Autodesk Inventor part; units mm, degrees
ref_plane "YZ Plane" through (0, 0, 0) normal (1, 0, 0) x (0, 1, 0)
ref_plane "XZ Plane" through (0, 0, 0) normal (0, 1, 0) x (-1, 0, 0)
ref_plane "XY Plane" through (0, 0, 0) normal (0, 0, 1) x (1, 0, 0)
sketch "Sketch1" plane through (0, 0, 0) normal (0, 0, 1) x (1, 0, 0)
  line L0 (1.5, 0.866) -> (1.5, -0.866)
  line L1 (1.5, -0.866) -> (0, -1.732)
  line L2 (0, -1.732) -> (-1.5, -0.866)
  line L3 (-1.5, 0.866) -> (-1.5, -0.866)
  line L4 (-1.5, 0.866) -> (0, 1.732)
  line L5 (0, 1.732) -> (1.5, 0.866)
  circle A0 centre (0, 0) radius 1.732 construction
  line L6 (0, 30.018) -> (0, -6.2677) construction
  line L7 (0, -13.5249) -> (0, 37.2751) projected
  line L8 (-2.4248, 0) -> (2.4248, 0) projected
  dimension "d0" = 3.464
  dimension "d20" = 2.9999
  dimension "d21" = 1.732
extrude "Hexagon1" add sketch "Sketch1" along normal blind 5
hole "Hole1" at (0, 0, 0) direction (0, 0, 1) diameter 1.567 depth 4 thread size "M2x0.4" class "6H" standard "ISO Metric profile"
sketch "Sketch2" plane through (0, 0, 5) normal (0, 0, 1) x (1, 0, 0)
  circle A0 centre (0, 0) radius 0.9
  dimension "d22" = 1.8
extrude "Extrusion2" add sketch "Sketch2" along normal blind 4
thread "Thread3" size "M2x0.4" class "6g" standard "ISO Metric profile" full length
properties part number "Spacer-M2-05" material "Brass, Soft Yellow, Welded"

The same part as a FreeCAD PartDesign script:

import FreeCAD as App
import Part
import Sketcher
from FreeCAD import Vector
Q = App.Units.Quantity


def add_polygon(sketch, points):
    """Adds a closed chain of lines whose ends are joined by coincident constraints."""
    first, n = sketch.GeometryCount, len(points)
    for a, b in zip(points, points[1:] + points[:1]):
        sketch.addGeometry(Part.LineSegment(App.Vector(*a, 0), App.Vector(*b, 0)), False)
    for i in range(n):
        sketch.addConstraint(Sketcher.Constraint("Coincident", first + i, 2, first + (i + 1) % n, 1))

doc = App.newDocument("Part")
params = doc.addObject("Spreadsheet::Sheet", "Params")
for row, (alias, value) in enumerate([
    ("pad1_length", "5 mm"),
    ("hole_diameter", "1.567 mm"),
    ("hole_depth", "4 mm"),
    ("sketch3_diameter", "1.8 mm"),
    ("pad2_length", "4 mm"),
], start=1):
    params.set(f"A{row}", alias)
    params.set(f"B{row}", "=" + value)
    params.setAlias(f"B{row}", alias)

body = doc.addObject("PartDesign::Body", "Body")

# Sketch on XY plane
sketch1 = doc.addObject("Sketcher::SketchObject", "Sketch")
body.addObject(sketch1)
sketch1.AttachmentSupport = (doc.XY_Plane, [""])
sketch1.MapMode = "FlatFace"
add_polygon(sketch1, [(1.5, 0.9), (0, 1.7), (-1.5, 0.9), (-1.5, -0.9), (0, -1.7), (1.5, -0.9)])  # lines 0-5
sketch1.addConstraint([
    Sketcher.Constraint("Vertical", 2),
    Sketcher.Constraint("Vertical", 5),
    Sketcher.Constraint("Symmetric", 0, 2, 3, 2, -1, 1),
    Sketcher.Constraint("Symmetric", 1, 2, 4, 2, -1, 1),
    Sketcher.Constraint("PointOnObject", 0, 2, -2),
    Sketcher.Constraint("Parallel", 0, 3),
    Sketcher.Constraint("Horizontal", 2, 2, 4, 2),
    Sketcher.Constraint("DistanceX", 2, 2, 4, 2, Q("3 mm")),
    Sketcher.Constraint("DistanceY", 2, 2, 2, 1, Q("1.732 mm")),
    Sketcher.Constraint("Angle", 0, Q("150.0007 deg")),
])
pad1 = doc.addObject("PartDesign::Pad", "Pad")
body.addObject(pad1)
pad1.Profile = sketch1
pad1.setExpression("Length", "Params.pad1_length")

# Sketch on XY plane
sketch2 = doc.addObject("Sketcher::SketchObject", "Sketch001")
body.addObject(sketch2)
sketch2.AttachmentSupport = (doc.XY_Plane, [""])
sketch2.MapMode = "FlatFace"
sketch2.addGeometry(Part.Circle(Vector(0, 0, 0), Vector(0, 0, 1), 0.8), False)
sketch2.addConstraint([
    Sketcher.Constraint("Coincident", 0, 3, -1, 1),
    Sketcher.Constraint("Diameter", 0, Q("1.567 mm")),
])
doc.recompute()
hole = doc.addObject("PartDesign::Hole", "Hole")
body.addObject(hole)
hole.Profile = sketch2
hole.ThreadType = "None"
hole.setExpression("Diameter", "Params.hole_diameter")
hole.DepthType = "Dimension"
hole.setExpression("Depth", "Params.hole_depth")
hole.DrillPoint = "Flat"
hole.Reversed = True

# Sketch on XY plane
sketch3 = doc.addObject("Sketcher::SketchObject", "Sketch002")
body.addObject(sketch3)
sketch3.AttachmentSupport = (doc.XY_Plane, [""])
sketch3.MapMode = "FlatFace"
sketch3.AttachmentOffset = App.Placement(Vector(0, 0, 5), App.Rotation())
sketch3.addGeometry(Part.Circle(Vector(0, 0, 0), Vector(0, 0, 1), 0.9), False)
sketch3.addConstraint([
    Sketcher.Constraint("Coincident", 0, 3, -1, 1),
    Sketcher.Constraint("Diameter", 0, Q("1.8 mm")),
])
sketch3.setExpression("Constraints[1]", "Params.sketch3_diameter")
pad2 = doc.addObject("PartDesign::Pad", "Pad001")
body.addObject(pad2)
pad2.Profile = sketch3
pad2.setExpression("Length", "Params.pad2_length")

doc.recompute()
